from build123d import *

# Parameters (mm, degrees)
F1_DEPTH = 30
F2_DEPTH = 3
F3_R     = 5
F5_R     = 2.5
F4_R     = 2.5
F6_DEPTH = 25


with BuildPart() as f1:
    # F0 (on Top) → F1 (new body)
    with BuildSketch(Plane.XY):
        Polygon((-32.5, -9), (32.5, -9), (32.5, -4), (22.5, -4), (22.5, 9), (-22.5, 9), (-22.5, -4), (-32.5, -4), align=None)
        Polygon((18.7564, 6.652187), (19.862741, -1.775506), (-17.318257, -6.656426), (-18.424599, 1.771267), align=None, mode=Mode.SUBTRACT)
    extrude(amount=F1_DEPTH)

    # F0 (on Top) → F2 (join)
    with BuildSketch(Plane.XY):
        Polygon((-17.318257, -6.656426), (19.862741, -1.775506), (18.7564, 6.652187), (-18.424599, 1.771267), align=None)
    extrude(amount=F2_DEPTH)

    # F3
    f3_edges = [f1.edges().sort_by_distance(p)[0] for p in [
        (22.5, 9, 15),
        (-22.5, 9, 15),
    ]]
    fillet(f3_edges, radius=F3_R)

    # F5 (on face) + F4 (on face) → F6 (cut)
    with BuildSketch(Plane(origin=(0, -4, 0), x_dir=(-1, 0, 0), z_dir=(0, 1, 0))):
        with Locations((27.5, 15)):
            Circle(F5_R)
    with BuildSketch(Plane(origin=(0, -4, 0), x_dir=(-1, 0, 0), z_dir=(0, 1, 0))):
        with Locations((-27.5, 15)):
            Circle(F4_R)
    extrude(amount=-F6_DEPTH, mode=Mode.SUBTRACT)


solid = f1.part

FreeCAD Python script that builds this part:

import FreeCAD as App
import Part
import Sketcher

V = App.Vector
Q = App.Units.Quantity


def edges_at(feature, points):
    """Names of the edges that pass closest to the given points."""
    edges = feature.Shape.Edges
    near = lambda p: min(range(len(edges)), key=lambda i: edges[i].distToShape(Part.Vertex(*p))[0])
    return sorted({f"Edge{near(p) + 1}" for p in points})

doc = App.newDocument("Part")
body = doc.addObject("PartDesign::Body", "Body")

# Sketch on XY plane
sketch1 = body.newObject("Sketcher::SketchObject", "Sketch")
sketch1.AttachmentSupport = (doc.getObject("XY_Plane"), [""])
sketch1.MapMode = "FlatFace"
sketch1.addGeometry([
    Part.LineSegment(V(-32.5, -9, 0), V(32.5, -9, 0)),  # 0
    Part.LineSegment(V(32.5, -9, 0), V(32.5, -4, 0)),  # 1
    Part.LineSegment(V(32.5, -4, 0), V(22.5, -4, 0)),  # 2
    Part.LineSegment(V(22.5, -4, 0), V(22.5, 9, 0)),  # 3
    Part.LineSegment(V(22.5, 9, 0), V(-22.5, 9, 0)),  # 4
    Part.LineSegment(V(-22.5, 9, 0), V(-22.5, -4, 0)),  # 5
    Part.LineSegment(V(-22.5, -4, 0), V(-32.5, -4, 0)),  # 6
    Part.LineSegment(V(-32.5, -4, 0), V(-32.5, -9, 0)),  # 7
    Part.LineSegment(V(-18.424599, 1.771267, 0), V(18.7564, 6.652187, 0)),  # 8
    Part.LineSegment(V(18.7564, 6.652187, 0), V(19.862741, -1.775506, 0)),  # 9
    Part.LineSegment(V(19.862741, -1.775506, 0), V(-17.318257, -6.656426, 0)),  # 10
    Part.LineSegment(V(-17.318257, -6.656426, 0), V(-18.424599, 1.771267, 0)),  # 11
], False)
sketch1.addConstraint([
    Sketcher.Constraint("Coincident", 0, 2, 1, 1),
    Sketcher.Constraint("Coincident", 1, 2, 2, 1),
    Sketcher.Constraint("Coincident", 2, 2, 3, 1),
    Sketcher.Constraint("Coincident", 3, 2, 4, 1),
    Sketcher.Constraint("Coincident", 4, 2, 5, 1),
    Sketcher.Constraint("Coincident", 5, 2, 6, 1),
    Sketcher.Constraint("Coincident", 6, 2, 7, 1),
    Sketcher.Constraint("Coincident", 7, 2, 0, 1),
    Sketcher.Constraint("Coincident", 8, 2, 9, 1),
    Sketcher.Constraint("Coincident", 9, 2, 10, 1),
    Sketcher.Constraint("Coincident", 10, 2, 11, 1),
    Sketcher.Constraint("Coincident", 11, 2, 8, 1),
    Sketcher.Constraint("Horizontal", 0),
    Sketcher.Constraint("Vertical", 1),
    Sketcher.Constraint("Horizontal", 2),
    Sketcher.Constraint("Vertical", 3),
    Sketcher.Constraint("Horizontal", 4),
    Sketcher.Constraint("Vertical", 5),
    Sketcher.Constraint("Horizontal", 6),
    Sketcher.Constraint("Vertical", 7),
    Sketcher.Constraint("Symmetric", 2, 2, 5, 2, -2),
    Sketcher.Constraint("Perpendicular", 8, 9),
    Sketcher.Constraint("Perpendicular", 9, 10),
    Sketcher.Constraint("Perpendicular", 10, 11),
    Sketcher.Constraint("Equal", 2, 6),
    Sketcher.Constraint("DistanceX", 0, 1, 0, 2, Q("65 mm")),
    Sketcher.Constraint("DistanceX", 2, 2, 2, 1, Q("10 mm")),
    Sketcher.Constraint("DistanceY", 1, 1, 1, 2, Q("5 mm")),
    Sketcher.Constraint("DistanceY", 3, 1, 3, 2, Q("13 mm")),
    Sketcher.Constraint("DistanceY", 0, 2, -1, 1, Q("9 mm")),
    Sketcher.Constraint("Distance", 8, Q("37.500001 mm")),
    Sketcher.Constraint("Distance", 9, Q("8.5 mm")),
    Sketcher.Constraint("DistanceX", 10, 2, 9, 2, Q("37.180998 mm")),
    Sketcher.Constraint("DistanceX", -1, 1, 8, 2, Q("18.7564 mm")),
    Sketcher.Constraint("DistanceY", -1, 1, 8, 2, Q("6.652187 mm")),
])
pad1 = body.newObject("PartDesign::Pad", "Pad")
pad1.Profile = sketch1
pad1.Length = 30

# Sketch on XY plane
sketch2 = body.newObject("Sketcher::SketchObject", "Sketch001")
sketch2.AttachmentSupport = (doc.getObject("XY_Plane"), [""])
sketch2.MapMode = "FlatFace"
sketch2.addGeometry([
    Part.LineSegment(V(-17.318257, -6.656426, 0), V(19.862741, -1.775506, 0)),
    Part.LineSegment(V(19.862741, -1.775506, 0), V(18.7564, 6.652187, 0)),
    Part.LineSegment(V(18.7564, 6.652187, 0), V(-18.424599, 1.771267, 0)),
    Part.LineSegment(V(-18.424599, 1.771267, 0), V(-17.318257, -6.656426, 0)),
], False)
sketch2.addConstraint([
    Sketcher.Constraint("Coincident", 0, 2, 1, 1),
    Sketcher.Constraint("Coincident", 1, 2, 2, 1),
    Sketcher.Constraint("Coincident", 2, 2, 3, 1),
    Sketcher.Constraint("Coincident", 3, 2, 0, 1),
    Sketcher.Constraint("Perpendicular", 0, 1),
    Sketcher.Constraint("Perpendicular", 1, 2),
    Sketcher.Constraint("Perpendicular", 2, 3),
    Sketcher.Constraint("Distance", 0, Q("37.5 mm")),
    Sketcher.Constraint("Distance", 1, Q("8.5 mm")),
    Sketcher.Constraint("DistanceX", 2, 2, 1, 2, Q("37.180999 mm")),
    Sketcher.Constraint("DistanceX", -1, 1, 1, 2, Q("18.7564 mm")),
    Sketcher.Constraint("DistanceY", 0, 2, -1, 1, Q("1.775506 mm")),
])
pad2 = body.newObject("PartDesign::Pad", "Pad001")
pad2.Profile = sketch2
pad2.Length = 3
doc.recompute()

fillet = body.newObject("PartDesign::Fillet", "Fillet")
fillet.Base = (pad2, edges_at(pad2, [(22.5, 9, 15), (-22.5, 9, 15)]))
fillet.Radius = 5

# Sketch on XZ plane
sketch3 = body.newObject("Sketcher::SketchObject", "Sketch002")
sketch3.AttachmentSupport = (doc.getObject("XZ_Plane"), [""])
sketch3.MapMode = "FlatFace"
sketch3.AttachmentOffset = App.Placement(V(0, 0, 4), App.Rotation())
sketch3.addGeometry([
    Part.Circle(V(-27.5, 15, 0), V(0, 0, 1), 2.5),
    Part.Circle(V(27.5, 15, 0), V(0, 0, 1), 2.5),
], False)
sketch3.addConstraint([
    Sketcher.Constraint("Equal", 0, 1),
    Sketcher.Constraint("Symmetric", 0, 3, 1, 3, -2),
    Sketcher.Constraint("Diameter", 0, Q("5 mm")),
    Sketcher.Constraint("DistanceY", -1, 1, 0, 3, Q("15 mm")),
    Sketcher.Constraint("DistanceX", 0, 3, 1, 3, Q("55 mm")),
])
pocket1 = body.newObject("PartDesign::Pocket", "Pocket")
pocket1.Profile = sketch3
pocket1.Length = 25
pocket1.Reversed = True

doc.recompute()
